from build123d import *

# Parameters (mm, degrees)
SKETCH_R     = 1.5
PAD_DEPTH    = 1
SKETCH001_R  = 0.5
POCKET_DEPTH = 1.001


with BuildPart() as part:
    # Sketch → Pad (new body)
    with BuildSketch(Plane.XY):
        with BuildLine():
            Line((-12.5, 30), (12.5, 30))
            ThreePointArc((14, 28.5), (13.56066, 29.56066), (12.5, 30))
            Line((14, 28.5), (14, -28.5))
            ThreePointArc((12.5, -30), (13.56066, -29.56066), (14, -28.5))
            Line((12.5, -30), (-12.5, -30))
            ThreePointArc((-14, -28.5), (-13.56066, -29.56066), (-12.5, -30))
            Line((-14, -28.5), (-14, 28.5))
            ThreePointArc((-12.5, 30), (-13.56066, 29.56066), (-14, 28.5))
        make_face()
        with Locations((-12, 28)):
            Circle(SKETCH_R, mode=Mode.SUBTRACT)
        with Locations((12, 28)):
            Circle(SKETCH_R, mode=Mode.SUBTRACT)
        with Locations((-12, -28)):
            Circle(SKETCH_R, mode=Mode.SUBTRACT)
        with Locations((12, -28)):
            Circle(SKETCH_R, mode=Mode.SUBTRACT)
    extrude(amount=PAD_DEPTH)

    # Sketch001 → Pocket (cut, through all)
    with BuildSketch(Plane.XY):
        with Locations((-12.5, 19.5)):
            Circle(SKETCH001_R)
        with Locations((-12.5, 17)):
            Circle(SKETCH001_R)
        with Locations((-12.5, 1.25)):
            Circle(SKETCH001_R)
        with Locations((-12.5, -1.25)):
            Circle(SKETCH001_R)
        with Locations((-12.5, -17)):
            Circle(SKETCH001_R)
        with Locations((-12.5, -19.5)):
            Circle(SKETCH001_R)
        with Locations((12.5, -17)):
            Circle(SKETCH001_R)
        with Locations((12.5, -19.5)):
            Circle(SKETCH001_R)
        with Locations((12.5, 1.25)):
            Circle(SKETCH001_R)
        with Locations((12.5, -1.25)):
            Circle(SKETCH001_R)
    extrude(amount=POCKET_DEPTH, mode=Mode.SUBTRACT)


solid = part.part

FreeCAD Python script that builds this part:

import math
import FreeCAD as App
import Part
import Sketcher

V = App.Vector

doc = App.newDocument("Part")
body = doc.addObject("PartDesign::Body", "Body")

# Sketch on XY plane
sketch1 = body.newObject("Sketcher::SketchObject", "Sketch")
sketch1.AttachmentSupport = (doc.getObject("XY_Plane"), [""])
sketch1.MapMode = "FlatFace"
sketch1.addGeometry(Part.LineSegment(V(12.5, 30, 0), V(-12.5, 30, 0)), False)
sketch1.addGeometry(Part.ArcOfCircle(Part.Circle(V(-12.5, 28.5, 0), V(0, 0, 1), 1.5), math.radians(90), math.radians(180)), False)
sketch1.addGeometry(Part.LineSegment(V(-14, 28.5, 0), V(-14, -28.5, 0)), False)
sketch1.addGeometry(Part.ArcOfCircle(Part.Circle(V(-12.5, -28.5, 0), V(0, 0, 1), 1.5), math.radians(-180), math.radians(-90)), False)
sketch1.addGeometry(Part.LineSegment(V(-12.5, -30, 0), V(12.5, -30, 0)), False)
sketch1.addGeometry(Part.ArcOfCircle(Part.Circle(V(12.5, -28.5, 0), V(0, 0, 1), 1.5), math.radians(-90), math.radians(0)), False)
sketch1.addGeometry(Part.LineSegment(V(14, -28.5, 0), V(14, 28.5, 0)), False)
sketch1.addGeometry(Part.ArcOfCircle(Part.Circle(V(12.5, 28.5, 0), V(0, 0, 1), 1.5), math.radians(0), math.radians(90)), False)
sketch1.addGeometry(Part.Circle(V(12, -28, 0), V(0, 0, 1), 1.5), False)
sketch1.addGeometry(Part.Circle(V(-12, -28, 0), V(0, 0, 1), 1.5), False)
sketch1.addGeometry(Part.Circle(V(12, 28, 0), V(0, 0, 1), 1.5), False)
sketch1.addGeometry(Part.Circle(V(-12, 28, 0), V(0, 0, 1), 1.5), False)
sketch1.addConstraint(Sketcher.Constraint("Tangent", 0, 2, 1, 1))
sketch1.addConstraint(Sketcher.Constraint("Tangent", 1, 2, 2, 1))
sketch1.addConstraint(Sketcher.Constraint("Tangent", 2, 2, 3, 1))
sketch1.addConstraint(Sketcher.Constraint("Tangent", 3, 2, 4, 1))
sketch1.addConstraint(Sketcher.Constraint("Tangent", 4, 2, 5, 1))
sketch1.addConstraint(Sketcher.Constraint("Tangent", 5, 2, 6, 1))
sketch1.addConstraint(Sketcher.Constraint("Tangent", 6, 2, 7, 1))
sketch1.addConstraint(Sketcher.Constraint("Tangent", 7, 2, 0, 1))
sketch1.addConstraint(Sketcher.Constraint("Horizontal", 0))
sketch1.addConstraint(Sketcher.Constraint("Vertical", 2))
sketch1.addConstraint(Sketcher.Constraint("Horizontal", 4))
sketch1.addConstraint(Sketcher.Constraint("Vertical", 6))
sketch1.addConstraint(Sketcher.Constraint("Equal", 1, 3))
sketch1.addConstraint(Sketcher.Constraint("Equal", 3, 5))
sketch1.addConstraint(Sketcher.Constraint("Equal", 5, 7))
sketch1.addConstraint(Sketcher.Constraint("Equal", 7, 8))
sketch1.addConstraint(Sketcher.Constraint("Equal", 8, 9))
sketch1.addConstraint(Sketcher.Constraint("Equal", 9, 10))
sketch1.addConstraint(Sketcher.Constraint("Equal", 10, 11))
sketch1.addConstraint(Sketcher.Constraint("Symmetric", 1, 3, 5, 3, -1, 1))
sketch1.addConstraint(Sketcher.Constraint("Symmetric", 9, 3, 10, 3, -1, 1))
sketch1.addConstraint(Sketcher.Constraint("Symmetric", 8, 3, 11, 3, -1, 1))
sketch1.addConstraint(Sketcher.Constraint("Symmetric", 8, 3, 9, 3, -2))
sketch1.addConstraint(Sketcher.Constraint("Diameter", 8, 3.0))
sketch1.addConstraint(Sketcher.Constraint("DistanceX", 0, 2, 0, 1, 25.0))
sketch1.addConstraint(Sketcher.Constraint("DistanceY", 2, 2, 2, 1, 57.0))
sketch1.addConstraint(Sketcher.Constraint("DistanceX", -1, 1, 8, 3, 12.0))
sketch1.addConstraint(Sketcher.Constraint("DistanceY", 8, 3, -1, 1, 28.0))
pad1 = body.newObject("PartDesign::Pad", "Pad")
pad1.Profile = sketch1
pad1.Length = 1

# Sketch on XY plane
sketch2 = body.newObject("Sketcher::SketchObject", "Sketch001")
sketch2.AttachmentSupport = (doc.getObject("XY_Plane"), [""])
sketch2.MapMode = "FlatFace"
sketch2.addGeometry(Part.Circle(V(-12.5, 19.5, 0), V(0, 0, 1), 0.5), False)
sketch2.addGeometry(Part.Circle(V(-12.5, 17, 0), V(0, 0, 1), 0.5), False)
sketch2.addGeometry(Part.Circle(V(-12.5, 1.2, 0), V(0, 0, 1), 0.5), False)
sketch2.addGeometry(Part.Circle(V(-12.5, -1.2, 0), V(0, 0, 1), 0.5), False)
sketch2.addGeometry(Part.Circle(V(-12.5, -17, 0), V(0, 0, 1), 0.5), False)
sketch2.addGeometry(Part.Circle(V(-12.5, -19.5, 0), V(0, 0, 1), 0.5), False)
sketch2.addGeometry(Part.Circle(V(12.5, -17, 0), V(0, 0, 1), 0.5), False)
sketch2.addGeometry(Part.Circle(V(12.5, -19.5, 0), V(0, 0, 1), 0.5), False)
sketch2.addGeometry(Part.Circle(V(12.5, 1.2, 0), V(0, 0, 1), 0.5), False)
sketch2.addGeometry(Part.Circle(V(12.5, -1.2, 0), V(0, 0, 1), 0.5), False)
sketch2.addConstraint(Sketcher.Constraint("Equal", 0, 1))
sketch2.addConstraint(Sketcher.Constraint("Equal", 1, 2))
sketch2.addConstraint(Sketcher.Constraint("Equal", 2, 3))
sketch2.addConstraint(Sketcher.Constraint("Equal", 3, 4))
sketch2.addConstraint(Sketcher.Constraint("Equal", 4, 5))
sketch2.addConstraint(Sketcher.Constraint("Equal", 5, 6))
sketch2.addConstraint(Sketcher.Constraint("Equal", 6, 7))
sketch2.addConstraint(Sketcher.Constraint("Equal", 7, 8))
sketch2.addConstraint(Sketcher.Constraint("Equal", 8, 9))
sketch2.addConstraint(Sketcher.Constraint("Symmetric", 1, 3, 6, 3, -1, 1))
sketch2.addConstraint(Sketcher.Constraint("Symmetric", 0, 3, 7, 3, -1, 1))
sketch2.addConstraint(Sketcher.Constraint("Symmetric", 3, 3, 8, 3, -1, 1))
sketch2.addConstraint(Sketcher.Constraint("Symmetric", 2, 3, 9, 3, -1, 1))
sketch2.addConstraint(Sketcher.Constraint("Symmetric", 4, 3, 6, 3, -2))
sketch2.addConstraint(Sketcher.Constraint("Symmetric", 5, 3, 7, 3, -2))
sketch2.addConstraint(Sketcher.Constraint("Symmetric", 2, 3, 8, 3, -2))
sketch2.addConstraint(Sketcher.Constraint("Vertical", 0, 3, 1, 3))
sketch2.addConstraint(Sketcher.Constraint("Vertical", 1, 3, 2, 3))
sketch2.addConstraint(Sketcher.Constraint("Diameter", 0, 1.0))
sketch2.addConstraint(Sketcher.Constraint("DistanceY", -1, 1, 1, 3, 17.0))
sketch2.addConstraint(Sketcher.Constraint("DistanceY", 5, 3, 0, 3, 39.0))
sketch2.addConstraint(Sketcher.Constraint("DistanceX", 4, 3, 6, 3, 25.0))
sketch2.addConstraint(Sketcher.Constraint("DistanceY", 3, 3, 2, 3, 2.5))
pocket1 = body.newObject("PartDesign::Pocket", "Pocket")
pocket1.Profile = sketch2
pocket1.Type = "ThroughAll"
pocket1.Reversed = True

doc.recompute()
